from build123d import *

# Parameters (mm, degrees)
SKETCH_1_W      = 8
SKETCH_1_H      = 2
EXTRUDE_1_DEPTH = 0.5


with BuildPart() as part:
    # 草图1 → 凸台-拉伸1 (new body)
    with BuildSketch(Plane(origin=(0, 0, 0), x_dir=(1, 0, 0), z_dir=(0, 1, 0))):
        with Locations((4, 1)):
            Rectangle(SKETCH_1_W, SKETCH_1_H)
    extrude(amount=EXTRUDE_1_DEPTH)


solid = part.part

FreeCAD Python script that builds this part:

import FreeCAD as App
import Part
import Sketcher
from FreeCAD import Vector
Q = App.Units.Quantity

doc = App.newDocument("Part")
body = doc.addObject("PartDesign::Body", "Body")

# Sketch on XZ plane
sketch1 = body.newObject("Sketcher::SketchObject", "Sketch")
sketch1.AttachmentSupport = (doc.getObject("XZ_Plane"), [""])
sketch1.MapMode = "FlatFace"
sketch1.addGeometry([
    Part.LineSegment(Vector(0, -2, 0), Vector(0, 0, 0)),
    Part.LineSegment(Vector(0, 0, 0), Vector(8, 0, 0)),
    Part.LineSegment(Vector(8, 0, 0), Vector(8, -2, 0)),
    Part.LineSegment(Vector(8, -2, 0), Vector(0, -2, 0)),
], False)
sketch1.addConstraint([
    Sketcher.Constraint("Coincident", 0, 2, 1, 1),
    Sketcher.Constraint("Coincident", 1, 2, 2, 1),
    Sketcher.Constraint("Coincident", 2, 2, 3, 1),
    Sketcher.Constraint("Coincident", 3, 2, 0, 1),
    Sketcher.Constraint("Vertical", 0),
    Sketcher.Constraint("Horizontal", 1),
    Sketcher.Constraint("Vertical", 2),
    Sketcher.Constraint("Horizontal", 3),
    Sketcher.Constraint("Coincident", 0, 2, -1, 1),
    Sketcher.Constraint("DistanceX", 1, 1, 1, 2, Q("8 mm")),
    Sketcher.Constraint("DistanceY", 0, 1, 0, 2, Q("2 mm")),
])
pad1 = body.newObject("PartDesign::Pad", "Pad")
pad1.Profile = sketch1
pad1.Length = 0.5
pad1.Reversed = True

doc.recompute()
